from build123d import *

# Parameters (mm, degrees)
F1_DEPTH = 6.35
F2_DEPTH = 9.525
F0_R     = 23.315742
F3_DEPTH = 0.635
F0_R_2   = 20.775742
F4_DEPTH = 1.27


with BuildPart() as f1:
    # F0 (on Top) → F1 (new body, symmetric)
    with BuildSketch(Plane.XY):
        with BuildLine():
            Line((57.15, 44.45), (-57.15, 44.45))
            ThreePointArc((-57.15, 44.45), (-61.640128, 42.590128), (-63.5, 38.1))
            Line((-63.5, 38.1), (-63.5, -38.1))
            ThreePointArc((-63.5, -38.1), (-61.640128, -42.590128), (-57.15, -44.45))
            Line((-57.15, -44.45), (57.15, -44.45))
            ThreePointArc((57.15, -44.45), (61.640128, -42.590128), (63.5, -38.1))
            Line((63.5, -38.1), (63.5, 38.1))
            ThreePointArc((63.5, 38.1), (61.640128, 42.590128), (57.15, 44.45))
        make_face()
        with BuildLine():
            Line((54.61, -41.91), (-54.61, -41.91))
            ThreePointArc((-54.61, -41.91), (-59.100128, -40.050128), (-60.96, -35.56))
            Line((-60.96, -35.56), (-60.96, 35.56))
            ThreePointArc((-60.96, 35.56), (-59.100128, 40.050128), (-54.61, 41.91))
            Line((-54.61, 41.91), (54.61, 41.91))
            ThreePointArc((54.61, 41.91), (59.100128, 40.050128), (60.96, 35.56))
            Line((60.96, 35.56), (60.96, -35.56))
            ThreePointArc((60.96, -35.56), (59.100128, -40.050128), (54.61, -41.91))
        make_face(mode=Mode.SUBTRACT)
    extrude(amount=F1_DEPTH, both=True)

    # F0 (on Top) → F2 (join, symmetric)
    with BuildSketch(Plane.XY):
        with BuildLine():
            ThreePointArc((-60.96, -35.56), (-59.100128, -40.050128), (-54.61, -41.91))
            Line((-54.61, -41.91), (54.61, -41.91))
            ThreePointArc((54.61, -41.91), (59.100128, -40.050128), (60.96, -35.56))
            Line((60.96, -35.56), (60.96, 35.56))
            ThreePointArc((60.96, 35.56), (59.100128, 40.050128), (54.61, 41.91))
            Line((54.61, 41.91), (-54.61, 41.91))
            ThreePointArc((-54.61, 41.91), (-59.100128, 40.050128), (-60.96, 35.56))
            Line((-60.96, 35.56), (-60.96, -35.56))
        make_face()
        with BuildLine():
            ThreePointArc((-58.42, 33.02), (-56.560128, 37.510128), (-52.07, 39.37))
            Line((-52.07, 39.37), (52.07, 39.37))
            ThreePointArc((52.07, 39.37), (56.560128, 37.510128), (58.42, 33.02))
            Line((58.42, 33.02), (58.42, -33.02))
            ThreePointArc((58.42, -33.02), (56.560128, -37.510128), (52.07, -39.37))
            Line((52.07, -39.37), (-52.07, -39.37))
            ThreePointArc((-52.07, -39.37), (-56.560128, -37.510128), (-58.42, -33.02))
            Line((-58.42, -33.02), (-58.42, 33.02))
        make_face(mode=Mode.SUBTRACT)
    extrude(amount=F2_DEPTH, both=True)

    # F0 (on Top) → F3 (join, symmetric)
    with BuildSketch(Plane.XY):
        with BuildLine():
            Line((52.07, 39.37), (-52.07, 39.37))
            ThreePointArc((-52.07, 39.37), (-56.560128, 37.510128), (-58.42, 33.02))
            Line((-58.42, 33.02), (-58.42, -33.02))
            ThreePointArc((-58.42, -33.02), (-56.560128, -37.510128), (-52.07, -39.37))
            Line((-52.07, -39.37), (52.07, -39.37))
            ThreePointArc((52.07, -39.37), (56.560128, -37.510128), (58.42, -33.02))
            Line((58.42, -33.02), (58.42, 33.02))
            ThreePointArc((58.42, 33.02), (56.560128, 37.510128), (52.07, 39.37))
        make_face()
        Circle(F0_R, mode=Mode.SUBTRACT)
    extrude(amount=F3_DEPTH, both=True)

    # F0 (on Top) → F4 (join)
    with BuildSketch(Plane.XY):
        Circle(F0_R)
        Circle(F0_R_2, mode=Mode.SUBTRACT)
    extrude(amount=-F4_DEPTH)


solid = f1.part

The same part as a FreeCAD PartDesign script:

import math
import FreeCAD as App
import Part
import Sketcher

V = App.Vector
Q = App.Units.Quantity

doc = App.newDocument("Part")
body = doc.addObject("PartDesign::Body", "Body")

# Sketch on XY plane
sketch1 = body.newObject("Sketcher::SketchObject", "Sketch")
sketch1.AttachmentSupport = (doc.getObject("XY_Plane"), [""])
sketch1.MapMode = "FlatFace"
sketch1.addGeometry(Part.LineSegment(V(57.15, 44.45, 0), V(-57.15, 44.45, 0)), False)
sketch1.addGeometry(Part.ArcOfCircle(Part.Circle(V(-57.15, 38.1, 0), V(0, 0, 1), 6.35), math.radians(90.000002), math.radians(179.999998)), False)
sketch1.addGeometry(Part.LineSegment(V(-63.5, 38.1, 0), V(-63.5, -38.1, 0)), False)
sketch1.addGeometry(Part.ArcOfCircle(Part.Circle(V(-57.15, -38.1, 0), V(0, 0, 1), 6.35), math.radians(-179.999998), math.radians(-90.000002)), False)
sketch1.addGeometry(Part.LineSegment(V(-57.15, -44.45, 0), V(57.15, -44.45, 0)), False)
sketch1.addGeometry(Part.ArcOfCircle(Part.Circle(V(57.15, -38.1, 0), V(0, 0, 1), 6.35), math.radians(-89.999998), math.radians(-0.000002)), False)
sketch1.addGeometry(Part.LineSegment(V(63.5, -38.1, 0), V(63.5, 38.1, 0)), False)
sketch1.addGeometry(Part.ArcOfCircle(Part.Circle(V(57.15, 38.1, 0), V(0, 0, 1), 6.35), math.radians(0.000002), math.radians(89.999998)), False)
sketch1.addGeometry(Part.ArcOfCircle(Part.Circle(V(54.61, -35.56, 0), V(0, 0, 1), 6.35), math.radians(-89.999998), math.radians(-0.000002)), False)
sketch1.addGeometry(Part.LineSegment(V(54.61, -41.91, 0), V(-54.61, -41.91, 0)), False)
sketch1.addGeometry(Part.ArcOfCircle(Part.Circle(V(-54.61, -35.56, 0), V(0, 0, 1), 6.35), math.radians(-179.999998), math.radians(-90.000002)), False)
sketch1.addGeometry(Part.LineSegment(V(-60.96, -35.56, 0), V(-60.96, 35.56, 0)), False)
sketch1.addGeometry(Part.ArcOfCircle(Part.Circle(V(-54.61, 35.56, 0), V(0, 0, 1), 6.35), math.radians(90.000002), math.radians(179.999998)), False)
sketch1.addGeometry(Part.LineSegment(V(-54.61, 41.91, 0), V(54.61, 41.91, 0)), False)
sketch1.addGeometry(Part.ArcOfCircle(Part.Circle(V(54.61, 35.56, 0), V(0, 0, 1), 6.35), math.radians(0.000002), math.radians(89.999998)), False)
sketch1.addGeometry(Part.LineSegment(V(60.96, 35.56, 0), V(60.96, -35.56, 0)), False)
sketch1.addConstraint(Sketcher.Constraint("Tangent", 0, 2, 1, 1))
sketch1.addConstraint(Sketcher.Constraint("Tangent", 1, 2, 2, 1))
sketch1.addConstraint(Sketcher.Constraint("Tangent", 2, 2, 3, 1))
sketch1.addConstraint(Sketcher.Constraint("Tangent", 3, 2, 4, 1))
sketch1.addConstraint(Sketcher.Constraint("Tangent", 4, 2, 5, 1))
sketch1.addConstraint(Sketcher.Constraint("Tangent", 5, 2, 6, 1))
sketch1.addConstraint(Sketcher.Constraint("Tangent", 6, 2, 7, 1))
sketch1.addConstraint(Sketcher.Constraint("Tangent", 7, 2, 0, 1))
sketch1.addConstraint(Sketcher.Constraint("Tangent", 8, 1, 9, 1))
sketch1.addConstraint(Sketcher.Constraint("Tangent", 9, 2, 10, 2))
sketch1.addConstraint(Sketcher.Constraint("Tangent", 10, 1, 11, 1))
sketch1.addConstraint(Sketcher.Constraint("Tangent", 11, 2, 12, 2))
sketch1.addConstraint(Sketcher.Constraint("Tangent", 12, 1, 13, 1))
sketch1.addConstraint(Sketcher.Constraint("Tangent", 13, 2, 14, 2))
sketch1.addConstraint(Sketcher.Constraint("Tangent", 14, 1, 15, 1))
sketch1.addConstraint(Sketcher.Constraint("Tangent", 15, 2, 8, 2))
sketch1.addConstraint(Sketcher.Constraint("Horizontal", 0))
sketch1.addConstraint(Sketcher.Constraint("Vertical", 2))
sketch1.addConstraint(Sketcher.Constraint("Horizontal", 4))
sketch1.addConstraint(Sketcher.Constraint("Vertical", 6))
sketch1.addConstraint(Sketcher.Constraint("Horizontal", 9))
sketch1.addConstraint(Sketcher.Constraint("Vertical", 11))
sketch1.addConstraint(Sketcher.Constraint("Horizontal", 13))
sketch1.addConstraint(Sketcher.Constraint("Vertical", 15))
sketch1.addConstraint(Sketcher.Constraint("Equal", 1, 3))
sketch1.addConstraint(Sketcher.Constraint("Equal", 3, 5))
sketch1.addConstraint(Sketcher.Constraint("Equal", 5, 7))
sketch1.addConstraint(Sketcher.Constraint("Equal", 7, 8))
sketch1.addConstraint(Sketcher.Constraint("Equal", 8, 10))
sketch1.addConstraint(Sketcher.Constraint("Equal", 10, 12))
sketch1.addConstraint(Sketcher.Constraint("Equal", 12, 14))
sketch1.addConstraint(Sketcher.Constraint("Symmetric", 1, 3, 5, 3, -1, 1))
sketch1.addConstraint(Sketcher.Constraint("Symmetric", 8, 3, 12, 3, -1, 1))
sketch1.addConstraint(Sketcher.Constraint("DistanceY", 2, 2, 2, 1, Q("3 in")))
sketch1.addConstraint(Sketcher.Constraint("Radius", 1, Q("0.25 in")))
sketch1.addConstraint(Sketcher.Constraint("DistanceX", 0, 2, 0, 1, Q("4.5 in")))
sketch1.addConstraint(Sketcher.Constraint("DistanceX", 9, 2, 9, 1, Q("4.3 in")))
sketch1.addConstraint(Sketcher.Constraint("DistanceY", 11, 1, 11, 2, Q("2.8 in")))
pad1 = body.newObject("PartDesign::Pad", "Pad")
pad1.Profile = sketch1
pad1.Length = Q("0.5 in")
pad1.Midplane = True

# Sketch on XY plane
sketch2 = body.newObject("Sketcher::SketchObject", "Sketch001")
sketch2.AttachmentSupport = (doc.getObject("XY_Plane"), [""])
sketch2.MapMode = "FlatFace"
sketch2.addGeometry(Part.ArcOfCircle(Part.Circle(V(-54.61, -35.56, 0), V(0, 0, 1), 6.35), math.radians(-179.999998), math.radians(-90.000002)), False)
sketch2.addGeometry(Part.LineSegment(V(-54.61, -41.91, 0), V(54.61, -41.91, 0)), False)
sketch2.addGeometry(Part.ArcOfCircle(Part.Circle(V(54.61, -35.56, 0), V(0, 0, 1), 6.35), math.radians(-89.999998), math.radians(-0.000002)), False)
sketch2.addGeometry(Part.LineSegment(V(60.96, -35.56, 0), V(60.96, 35.56, 0)), False)
sketch2.addGeometry(Part.ArcOfCircle(Part.Circle(V(54.61, 35.56, 0), V(0, 0, 1), 6.35), math.radians(0.000002), math.radians(89.999998)), False)
sketch2.addGeometry(Part.LineSegment(V(54.61, 41.91, 0), V(-54.61, 41.91, 0)), False)
sketch2.addGeometry(Part.ArcOfCircle(Part.Circle(V(-54.61, 35.56, 0), V(0, 0, 1), 6.35), math.radians(90.000002), math.radians(179.999998)), False)
sketch2.addGeometry(Part.LineSegment(V(-60.96, 35.56, 0), V(-60.96, -35.56, 0)), False)
sketch2.addGeometry(Part.LineSegment(V(-58.42, -33.02, 0), V(-58.42, 33.02, 0)), False)
sketch2.addGeometry(Part.ArcOfCircle(Part.Circle(V(-52.07, 33.02, 0), V(0, 0, 1), 6.35), math.radians(90.000002), math.radians(179.999998)), False)
sketch2.addGeometry(Part.LineSegment(V(-52.07, 39.37, 0), V(52.07, 39.37, 0)), False)
sketch2.addGeometry(Part.ArcOfCircle(Part.Circle(V(52.07, 33.02, 0), V(0, 0, 1), 6.35), math.radians(0.000002), math.radians(89.999998)), False)
sketch2.addGeometry(Part.LineSegment(V(58.42, 33.02, 0), V(58.42, -33.02, 0)), False)
sketch2.addGeometry(Part.ArcOfCircle(Part.Circle(V(52.07, -33.02, 0), V(0, 0, 1), 6.35), math.radians(-89.999998), math.radians(-0.000002)), False)
sketch2.addGeometry(Part.LineSegment(V(52.07, -39.37, 0), V(-52.07, -39.37, 0)), False)
sketch2.addGeometry(Part.ArcOfCircle(Part.Circle(V(-52.07, -33.02, 0), V(0, 0, 1), 6.35), math.radians(-179.999998), math.radians(-90.000002)), False)
sketch2.addConstraint(Sketcher.Constraint("Tangent", 0, 2, 1, 1))
sketch2.addConstraint(Sketcher.Constraint("Tangent", 1, 2, 2, 1))
sketch2.addConstraint(Sketcher.Constraint("Tangent", 2, 2, 3, 1))
sketch2.addConstraint(Sketcher.Constraint("Tangent", 3, 2, 4, 1))
sketch2.addConstraint(Sketcher.Constraint("Tangent", 4, 2, 5, 1))
sketch2.addConstraint(Sketcher.Constraint("Tangent", 5, 2, 6, 1))
sketch2.addConstraint(Sketcher.Constraint("Tangent", 6, 2, 7, 1))
sketch2.addConstraint(Sketcher.Constraint("Tangent", 7, 2, 0, 1))
sketch2.addConstraint(Sketcher.Constraint("Tangent", 8, 2, 9, 2))
sketch2.addConstraint(Sketcher.Constraint("Tangent", 9, 1, 10, 1))
sketch2.addConstraint(Sketcher.Constraint("Tangent", 10, 2, 11, 2))
sketch2.addConstraint(Sketcher.Constraint("Tangent", 11, 1, 12, 1))
sketch2.addConstraint(Sketcher.Constraint("Tangent", 12, 2, 13, 2))
sketch2.addConstraint(Sketcher.Constraint("Tangent", 13, 1, 14, 1))
sketch2.addConstraint(Sketcher.Constraint("Tangent", 14, 2, 15, 2))
sketch2.addConstraint(Sketcher.Constraint("Tangent", 15, 1, 8, 1))
sketch2.addConstraint(Sketcher.Constraint("Horizontal", 1))
sketch2.addConstraint(Sketcher.Constraint("Vertical", 3))
sketch2.addConstraint(Sketcher.Constraint("Horizontal", 5))
sketch2.addConstraint(Sketcher.Constraint("Vertical", 7))
sketch2.addConstraint(Sketcher.Constraint("Vertical", 8))
sketch2.addConstraint(Sketcher.Constraint("Horizontal", 10))
sketch2.addConstraint(Sketcher.Constraint("Vertical", 12))
sketch2.addConstraint(Sketcher.Constraint("Horizontal", 14))
sketch2.addConstraint(Sketcher.Constraint("Equal", 0, 2))
sketch2.addConstraint(Sketcher.Constraint("Equal", 2, 4))
sketch2.addConstraint(Sketcher.Constraint("Equal", 4, 6))
sketch2.addConstraint(Sketcher.Constraint("Equal", 6, 9))
sketch2.addConstraint(Sketcher.Constraint("Equal", 9, 11))
sketch2.addConstraint(Sketcher.Constraint("Equal", 11, 13))
sketch2.addConstraint(Sketcher.Constraint("Equal", 13, 15))
sketch2.addConstraint(Sketcher.Constraint("Symmetric", 0, 3, 4, 3, -1, 1))
sketch2.addConstraint(Sketcher.Constraint("Symmetric", 9, 3, 13, 3, -1, 1))
sketch2.addConstraint(Sketcher.Constraint("Radius", 0, Q("0.25 in")))
sketch2.addConstraint(Sketcher.Constraint("DistanceX", 1, 1, 1, 2, Q("4.3 in")))
sketch2.addConstraint(Sketcher.Constraint("DistanceX", 10, 1, 10, 2, Q("4.1 in")))
sketch2.addConstraint(Sketcher.Constraint("DistanceY", 3, 1, 3, 2, Q("2.8 in")))
sketch2.addConstraint(Sketcher.Constraint("DistanceY", 8, 1, 8, 2, Q("2.6 in")))
pad2 = body.newObject("PartDesign::Pad", "Pad001")
pad2.Profile = sketch2
pad2.Length = Q("0.75 in")
pad2.Midplane = True

# Sketch on XY plane
sketch3 = body.newObject("Sketcher::SketchObject", "Sketch002")
sketch3.AttachmentSupport = (doc.getObject("XY_Plane"), [""])
sketch3.MapMode = "FlatFace"
sketch3.addGeometry(Part.LineSegment(V(52.07, 39.37, 0), V(-52.07, 39.37, 0)), False)
sketch3.addGeometry(Part.ArcOfCircle(Part.Circle(V(-52.07, 33.02, 0), V(0, 0, 1), 6.35), math.radians(90.000002), math.radians(179.999998)), False)
sketch3.addGeometry(Part.LineSegment(V(-58.42, 33.02, 0), V(-58.42, -33.02, 0)), False)
sketch3.addGeometry(Part.ArcOfCircle(Part.Circle(V(-52.07, -33.02, 0), V(0, 0, 1), 6.35), math.radians(-179.999998), math.radians(-90.000002)), False)
sketch3.addGeometry(Part.LineSegment(V(-52.07, -39.37, 0), V(52.07, -39.37, 0)), False)
sketch3.addGeometry(Part.ArcOfCircle(Part.Circle(V(52.07, -33.02, 0), V(0, 0, 1), 6.35), math.radians(-89.999998), math.radians(-0.000002)), False)
sketch3.addGeometry(Part.LineSegment(V(58.42, -33.02, 0), V(58.42, 33.02, 0)), False)
sketch3.addGeometry(Part.ArcOfCircle(Part.Circle(V(52.07, 33.02, 0), V(0, 0, 1), 6.35), math.radians(0.000002), math.radians(89.999998)), False)
sketch3.addGeometry(Part.Circle(V(0, 0, 0), V(0, 0, 1), 23.315742), False)
sketch3.addConstraint(Sketcher.Constraint("Tangent", 0, 2, 1, 1))
sketch3.addConstraint(Sketcher.Constraint("Tangent", 1, 2, 2, 1))
sketch3.addConstraint(Sketcher.Constraint("Tangent", 2, 2, 3, 1))
sketch3.addConstraint(Sketcher.Constraint("Tangent", 3, 2, 4, 1))
sketch3.addConstraint(Sketcher.Constraint("Tangent", 4, 2, 5, 1))
sketch3.addConstraint(Sketcher.Constraint("Tangent", 5, 2, 6, 1))
sketch3.addConstraint(Sketcher.Constraint("Tangent", 6, 2, 7, 1))
sketch3.addConstraint(Sketcher.Constraint("Tangent", 7, 2, 0, 1))
sketch3.addConstraint(Sketcher.Constraint("Horizontal", 0))
sketch3.addConstraint(Sketcher.Constraint("Vertical", 2))
sketch3.addConstraint(Sketcher.Constraint("Horizontal", 4))
sketch3.addConstraint(Sketcher.Constraint("Vertical", 6))
sketch3.addConstraint(Sketcher.Constraint("Coincident", 8, 3, -1, 1))
sketch3.addConstraint(Sketcher.Constraint("Equal", 1, 3))
sketch3.addConstraint(Sketcher.Constraint("Equal", 3, 5))
sketch3.addConstraint(Sketcher.Constraint("Equal", 5, 7))
sketch3.addConstraint(Sketcher.Constraint("Symmetric", 1, 3, 5, 3, -1, 1))
sketch3.addConstraint(Sketcher.Constraint("Radius", 1, Q("0.25 in")))
sketch3.addConstraint(Sketcher.Constraint("DistanceX", 0, 2, 0, 1, Q("4.1 in")))
sketch3.addConstraint(Sketcher.Constraint("DistanceY", 2, 2, 2, 1, Q("2.6 in")))
sketch3.addConstraint(Sketcher.Constraint("Diameter", 8, Q("46.631484 mm")))
pad3 = body.newObject("PartDesign::Pad", "Pad002")
pad3.Profile = sketch3
pad3.Length = Q("0.05 in")
pad3.Midplane = True

# Sketch on XY plane
sketch4 = body.newObject("Sketcher::SketchObject", "Sketch003")
sketch4.AttachmentSupport = (doc.getObject("XY_Plane"), [""])
sketch4.MapMode = "FlatFace"
sketch4.addGeometry(Part.Circle(V(0, 0, 0), V(0, 0, 1), 23.315742), False)
sketch4.addGeometry(Part.Circle(V(0, 0, 0), V(0, 0, 1), 20.775742), False)
sketch4.addConstraint(Sketcher.Constraint("Coincident", 0, 3, -1, 1))
sketch4.addConstraint(Sketcher.Constraint("Coincident", 1, 3, -1, 1))
sketch4.addConstraint(Sketcher.Constraint("Diameter", 0, Q("46.631484 mm")))
sketch4.addConstraint(Sketcher.Constraint("Diameter", 1, Q("41.551484 mm")))
pad4 = body.newObject("PartDesign::Pad", "Pad003")
pad4.Profile = sketch4
pad4.Length = Q("0.05 in")
pad4.Reversed = True

doc.recompute()
